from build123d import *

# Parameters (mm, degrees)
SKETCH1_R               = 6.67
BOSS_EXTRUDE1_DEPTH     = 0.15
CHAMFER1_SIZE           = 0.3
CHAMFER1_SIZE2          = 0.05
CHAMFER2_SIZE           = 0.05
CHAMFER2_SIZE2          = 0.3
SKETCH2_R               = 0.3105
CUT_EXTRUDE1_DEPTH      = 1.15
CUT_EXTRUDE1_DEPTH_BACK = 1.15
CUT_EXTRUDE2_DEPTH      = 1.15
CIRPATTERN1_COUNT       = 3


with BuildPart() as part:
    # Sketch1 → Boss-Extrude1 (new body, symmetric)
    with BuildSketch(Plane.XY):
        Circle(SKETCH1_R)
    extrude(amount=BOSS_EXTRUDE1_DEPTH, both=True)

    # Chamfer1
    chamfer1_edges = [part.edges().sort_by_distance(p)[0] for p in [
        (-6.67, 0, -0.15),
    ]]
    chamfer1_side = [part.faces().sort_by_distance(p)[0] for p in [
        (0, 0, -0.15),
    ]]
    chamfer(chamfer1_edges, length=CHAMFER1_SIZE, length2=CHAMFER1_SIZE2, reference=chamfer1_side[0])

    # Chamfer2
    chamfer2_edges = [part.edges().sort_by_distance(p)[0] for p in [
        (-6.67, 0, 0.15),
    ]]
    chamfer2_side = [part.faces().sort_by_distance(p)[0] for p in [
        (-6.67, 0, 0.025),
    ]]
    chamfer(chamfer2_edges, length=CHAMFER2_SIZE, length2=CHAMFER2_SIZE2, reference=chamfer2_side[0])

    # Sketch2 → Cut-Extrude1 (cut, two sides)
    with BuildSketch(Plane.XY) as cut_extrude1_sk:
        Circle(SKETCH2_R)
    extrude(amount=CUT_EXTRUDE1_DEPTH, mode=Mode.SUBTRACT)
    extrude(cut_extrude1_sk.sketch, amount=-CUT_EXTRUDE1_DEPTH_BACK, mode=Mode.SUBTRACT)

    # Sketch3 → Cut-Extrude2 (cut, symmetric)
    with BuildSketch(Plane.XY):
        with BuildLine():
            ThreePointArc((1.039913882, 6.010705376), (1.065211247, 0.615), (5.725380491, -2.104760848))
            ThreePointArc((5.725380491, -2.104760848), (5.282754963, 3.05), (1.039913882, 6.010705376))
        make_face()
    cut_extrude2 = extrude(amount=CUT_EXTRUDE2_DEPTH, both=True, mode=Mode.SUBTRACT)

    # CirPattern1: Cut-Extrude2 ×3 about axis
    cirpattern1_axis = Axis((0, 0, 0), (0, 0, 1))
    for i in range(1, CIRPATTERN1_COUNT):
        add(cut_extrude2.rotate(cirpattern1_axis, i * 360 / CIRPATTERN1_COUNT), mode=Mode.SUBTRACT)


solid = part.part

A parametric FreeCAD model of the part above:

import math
import FreeCAD as App
import Part
import Sketcher
from FreeCAD import Vector
Q = App.Units.Quantity


def edges_at(feature, points):
    """Names of the edges that pass closest to the given points."""
    edges = feature.Shape.Edges
    near = lambda p: min(range(len(edges)), key=lambda i: edges[i].distToShape(Part.Vertex(*p))[0])
    return sorted({f"Edge{near(p) + 1}" for p in points})

doc = App.newDocument("Part")
params = doc.addObject("Spreadsheet::Sheet", "Params")
for row, (alias, value) in enumerate([
    ("sketch1_diameter", "13.34 mm"),
    ("pad1_length", "0.3 mm"),
    ("chamfer_size", "0.3 mm"),
    ("chamfer_size2", "0.05 mm"),
    ("chamfer2_size", "0.05 mm"),
    ("chamfer2_size2", "0.3 mm"),
    ("sketch3_radius", "6.1 mm"),
    ("sketch3_radius2", "5.44 mm"),
    ("pocket2_length", "2.3 mm"),
], start=1):
    params.set(f"A{row}", alias)
    params.set(f"B{row}", "=" + value)
    params.setAlias(f"B{row}", alias)

body = doc.addObject("PartDesign::Body", "Body")

# Sketch on XY plane
sketch1 = doc.addObject("Sketcher::SketchObject", "Sketch")
body.addObject(sketch1)
sketch1.AttachmentSupport = (doc.XY_Plane, [""])
sketch1.MapMode = "FlatFace"
sketch1.addGeometry(Part.Circle(Vector(0, 0, 0), Vector(0, 0, 1), 6.67), False)
sketch1.addConstraint(Sketcher.Constraint("Coincident", 0, 3, -1, 1))
sketch1.addConstraint(Sketcher.Constraint("Diameter", 0, Q("13.34 mm")))
sketch1.setExpression("Constraints[1]", "Params.sketch1_diameter")
pad1 = doc.addObject("PartDesign::Pad", "Pad")
body.addObject(pad1)
pad1.Profile = sketch1
pad1.setExpression("Length", "Params.pad1_length")
pad1.Midplane = True
doc.recompute()

chamfer = doc.addObject("PartDesign::Chamfer", "Chamfer")
body.addObject(chamfer)
chamfer.Base = (pad1, edges_at(pad1, [(-6.67, 0, -0.15)]))
chamfer.ChamferType = "Two distances"
chamfer.setExpression("Size", "Params.chamfer_size")
chamfer.setExpression("Size2", "Params.chamfer_size2")
chamfer.FlipDirection = True
doc.recompute()

chamfer2 = doc.addObject("PartDesign::Chamfer", "Chamfer001")
body.addObject(chamfer2)
chamfer2.Base = (chamfer, edges_at(chamfer, [(-6.67, 0, 0.15)]))
chamfer2.ChamferType = "Two distances"
chamfer2.setExpression("Size", "Params.chamfer2_size")
chamfer2.setExpression("Size2", "Params.chamfer2_size2")

# Sketch on XY plane
sketch2 = doc.addObject("Sketcher::SketchObject", "Sketch001")
body.addObject(sketch2)
sketch2.AttachmentSupport = (doc.XY_Plane, [""])
sketch2.MapMode = "FlatFace"
sketch2.addGeometry(Part.Circle(Vector(0, 0, 0), Vector(0, 0, 1), 0.3105), False)
sketch2.addConstraint(Sketcher.Constraint("Coincident", 0, 3, -1, 1))
sketch2.addConstraint(Sketcher.Constraint("Diameter", 0, Q("0.621 mm")))
pocket1 = doc.addObject("PartDesign::Pocket", "Pocket")
body.addObject(pocket1)
pocket1.Profile = sketch2
pocket1.Type = "ThroughAll"
pocket1.Midplane = True

# Sketch on XY plane
sketch3 = doc.addObject("Sketcher::SketchObject", "Sketch002")
body.addObject(sketch3)
sketch3.AttachmentSupport = (doc.XY_Plane, [""])
sketch3.MapMode = "FlatFace"
sketch3.addGeometry(Part.ArcOfCircle(Part.Circle(Vector(5.776389, 3.335, 0), Vector(0, 0, 1), 5.44), math.radians(150.53725), math.radians(269.46275)), False)
sketch3.addGeometry(Part.ArcOfCircle(Part.Circle(Vector(0, 0, 0), Vector(0, 0, 1), 6.1), math.radians(-20.184406), math.radians(80.184406)), False)
sketch3.addConstraint(Sketcher.Constraint("Coincident", 0, 1, 1, 2))
sketch3.addConstraint(Sketcher.Constraint("Coincident", 1, 1, 0, 2))
sketch3.addConstraint(Sketcher.Constraint("Coincident", 1, 3, -1, 1))
sketch3.addConstraint(Sketcher.Constraint("Radius", 1, Q("6.1 mm")))
sketch3.addConstraint(Sketcher.Constraint("Radius", 0, Q("5.44 mm")))
sketch3.addConstraint(Sketcher.Constraint("DistanceY", -1, 1, 0, 3, Q("3.335 mm")))
sketch3.addConstraint(Sketcher.Constraint("DistanceX", -1, 1, 0, 3, Q("5.776389 mm")))
sketch3.setExpression("Constraints[3]", "Params.sketch3_radius")
sketch3.setExpression("Constraints[4]", "Params.sketch3_radius2")
pocket2 = doc.addObject("PartDesign::Pocket", "Pocket001")
body.addObject(pocket2)
pocket2.Profile = sketch3
pocket2.setExpression("Length", "Params.pocket2_length")
pocket2.Midplane = True
doc.recompute()

polarpattern = doc.addObject("PartDesign::PolarPattern", "PolarPattern")
body.addObject(polarpattern)
polarpattern.Originals = [pocket2]
polarpattern.Axis = (doc.Z_Axis, [""])
polarpattern.Angle = 360
polarpattern.Occurrences = 3
body.Tip = polarpattern

doc.recompute()
